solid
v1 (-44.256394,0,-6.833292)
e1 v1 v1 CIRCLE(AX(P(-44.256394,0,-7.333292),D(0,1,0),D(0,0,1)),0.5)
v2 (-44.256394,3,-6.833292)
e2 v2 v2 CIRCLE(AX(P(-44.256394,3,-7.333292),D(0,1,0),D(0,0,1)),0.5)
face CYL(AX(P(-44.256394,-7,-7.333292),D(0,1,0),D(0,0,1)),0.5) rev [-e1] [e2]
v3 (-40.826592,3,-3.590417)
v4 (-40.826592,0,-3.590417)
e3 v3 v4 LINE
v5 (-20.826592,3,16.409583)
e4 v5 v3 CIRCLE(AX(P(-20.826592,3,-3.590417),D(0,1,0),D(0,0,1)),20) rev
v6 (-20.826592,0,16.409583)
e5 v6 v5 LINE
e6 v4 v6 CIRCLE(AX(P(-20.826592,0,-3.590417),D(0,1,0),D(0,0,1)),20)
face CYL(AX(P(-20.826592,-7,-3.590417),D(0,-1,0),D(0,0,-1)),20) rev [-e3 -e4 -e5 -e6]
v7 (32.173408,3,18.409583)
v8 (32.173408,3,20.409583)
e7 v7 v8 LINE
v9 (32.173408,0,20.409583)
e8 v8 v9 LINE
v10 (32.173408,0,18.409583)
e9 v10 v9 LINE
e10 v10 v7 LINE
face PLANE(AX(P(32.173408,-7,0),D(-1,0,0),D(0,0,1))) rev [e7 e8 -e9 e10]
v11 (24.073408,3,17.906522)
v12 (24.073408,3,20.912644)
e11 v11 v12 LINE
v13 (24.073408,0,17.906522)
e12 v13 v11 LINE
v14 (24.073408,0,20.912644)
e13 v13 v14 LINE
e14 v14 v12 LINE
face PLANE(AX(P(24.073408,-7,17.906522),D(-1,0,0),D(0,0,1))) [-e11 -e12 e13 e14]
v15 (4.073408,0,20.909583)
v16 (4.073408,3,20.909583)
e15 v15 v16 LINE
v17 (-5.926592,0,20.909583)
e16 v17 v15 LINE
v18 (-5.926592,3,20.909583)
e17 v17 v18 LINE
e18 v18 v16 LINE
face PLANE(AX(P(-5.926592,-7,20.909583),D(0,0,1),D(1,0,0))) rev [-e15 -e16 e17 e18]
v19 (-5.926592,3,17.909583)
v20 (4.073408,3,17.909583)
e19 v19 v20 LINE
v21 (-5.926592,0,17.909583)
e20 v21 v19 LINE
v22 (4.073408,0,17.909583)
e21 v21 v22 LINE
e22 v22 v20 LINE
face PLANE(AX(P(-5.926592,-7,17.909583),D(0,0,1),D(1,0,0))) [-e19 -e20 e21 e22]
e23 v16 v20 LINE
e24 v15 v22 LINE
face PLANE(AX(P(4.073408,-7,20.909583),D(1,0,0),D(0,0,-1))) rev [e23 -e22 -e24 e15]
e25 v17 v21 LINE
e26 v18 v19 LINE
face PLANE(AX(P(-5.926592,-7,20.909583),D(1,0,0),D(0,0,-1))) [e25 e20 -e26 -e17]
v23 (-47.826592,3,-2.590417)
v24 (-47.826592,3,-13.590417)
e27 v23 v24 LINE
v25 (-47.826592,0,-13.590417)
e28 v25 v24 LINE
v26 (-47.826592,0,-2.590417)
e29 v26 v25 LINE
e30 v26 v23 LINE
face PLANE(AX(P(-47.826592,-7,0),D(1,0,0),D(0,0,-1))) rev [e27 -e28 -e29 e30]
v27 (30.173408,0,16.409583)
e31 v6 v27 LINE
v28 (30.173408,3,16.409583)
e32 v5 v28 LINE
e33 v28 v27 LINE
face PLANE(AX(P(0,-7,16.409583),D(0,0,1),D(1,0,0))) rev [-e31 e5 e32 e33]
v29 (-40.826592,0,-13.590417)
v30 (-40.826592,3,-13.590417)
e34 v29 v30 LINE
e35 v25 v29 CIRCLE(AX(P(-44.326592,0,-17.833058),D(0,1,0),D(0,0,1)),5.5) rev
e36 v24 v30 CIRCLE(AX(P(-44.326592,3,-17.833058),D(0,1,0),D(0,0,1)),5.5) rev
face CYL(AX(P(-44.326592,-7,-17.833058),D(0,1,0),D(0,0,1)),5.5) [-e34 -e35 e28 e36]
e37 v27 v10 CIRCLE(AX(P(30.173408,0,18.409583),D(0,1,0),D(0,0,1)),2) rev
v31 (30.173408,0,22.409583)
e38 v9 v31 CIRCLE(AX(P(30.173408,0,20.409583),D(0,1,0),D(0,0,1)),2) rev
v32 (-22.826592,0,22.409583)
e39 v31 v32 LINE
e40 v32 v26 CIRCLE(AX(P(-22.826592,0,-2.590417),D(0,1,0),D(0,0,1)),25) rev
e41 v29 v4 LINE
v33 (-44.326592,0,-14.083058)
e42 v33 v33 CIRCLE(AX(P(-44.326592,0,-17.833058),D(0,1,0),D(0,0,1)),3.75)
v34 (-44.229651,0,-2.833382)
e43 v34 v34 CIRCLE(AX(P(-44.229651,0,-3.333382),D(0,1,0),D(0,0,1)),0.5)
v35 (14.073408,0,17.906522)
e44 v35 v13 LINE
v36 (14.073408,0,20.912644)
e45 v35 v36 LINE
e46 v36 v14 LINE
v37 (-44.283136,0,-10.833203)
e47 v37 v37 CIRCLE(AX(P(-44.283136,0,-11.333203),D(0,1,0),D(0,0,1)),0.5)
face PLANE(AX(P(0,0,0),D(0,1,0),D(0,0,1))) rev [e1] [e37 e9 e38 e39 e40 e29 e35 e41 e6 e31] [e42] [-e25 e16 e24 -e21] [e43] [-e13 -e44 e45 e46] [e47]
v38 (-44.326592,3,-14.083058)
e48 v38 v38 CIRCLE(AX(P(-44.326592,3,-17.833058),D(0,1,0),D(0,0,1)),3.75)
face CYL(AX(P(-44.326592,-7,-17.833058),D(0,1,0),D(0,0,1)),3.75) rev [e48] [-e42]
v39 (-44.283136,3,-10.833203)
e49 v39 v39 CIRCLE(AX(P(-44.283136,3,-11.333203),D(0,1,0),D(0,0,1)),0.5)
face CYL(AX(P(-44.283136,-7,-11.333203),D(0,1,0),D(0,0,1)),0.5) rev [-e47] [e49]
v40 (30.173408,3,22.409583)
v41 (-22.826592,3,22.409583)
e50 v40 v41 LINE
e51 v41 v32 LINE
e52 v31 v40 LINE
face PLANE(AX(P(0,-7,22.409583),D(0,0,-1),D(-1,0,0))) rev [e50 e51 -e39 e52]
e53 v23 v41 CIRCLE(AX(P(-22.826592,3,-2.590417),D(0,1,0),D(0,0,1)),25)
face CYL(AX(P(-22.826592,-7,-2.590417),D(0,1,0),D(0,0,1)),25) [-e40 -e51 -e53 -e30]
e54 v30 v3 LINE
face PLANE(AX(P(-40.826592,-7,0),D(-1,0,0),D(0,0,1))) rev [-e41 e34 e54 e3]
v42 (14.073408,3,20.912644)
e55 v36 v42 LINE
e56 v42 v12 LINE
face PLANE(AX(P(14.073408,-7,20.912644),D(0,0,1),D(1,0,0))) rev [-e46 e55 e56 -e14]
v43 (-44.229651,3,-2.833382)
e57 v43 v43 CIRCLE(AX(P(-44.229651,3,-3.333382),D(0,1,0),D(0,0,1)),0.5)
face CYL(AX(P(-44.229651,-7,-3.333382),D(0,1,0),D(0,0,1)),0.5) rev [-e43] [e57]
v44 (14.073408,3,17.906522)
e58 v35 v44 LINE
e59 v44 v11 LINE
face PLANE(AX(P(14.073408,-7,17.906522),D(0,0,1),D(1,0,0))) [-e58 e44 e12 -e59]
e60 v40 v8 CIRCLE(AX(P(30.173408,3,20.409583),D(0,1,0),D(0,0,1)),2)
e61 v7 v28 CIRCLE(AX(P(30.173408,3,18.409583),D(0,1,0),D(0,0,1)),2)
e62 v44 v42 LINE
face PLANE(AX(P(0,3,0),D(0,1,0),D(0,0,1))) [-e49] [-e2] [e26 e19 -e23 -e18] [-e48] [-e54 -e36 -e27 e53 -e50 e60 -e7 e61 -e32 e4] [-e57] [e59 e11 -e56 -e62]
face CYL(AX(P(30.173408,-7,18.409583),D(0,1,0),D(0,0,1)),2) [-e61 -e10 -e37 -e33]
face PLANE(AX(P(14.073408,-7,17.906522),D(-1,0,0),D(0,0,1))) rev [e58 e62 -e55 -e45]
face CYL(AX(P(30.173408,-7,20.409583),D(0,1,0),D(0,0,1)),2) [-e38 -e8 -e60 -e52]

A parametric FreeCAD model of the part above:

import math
import FreeCAD as App
import Part
import Sketcher
from FreeCAD import Vector


def edges_at(feature, points):
    """Names of the edges that pass closest to the given points."""
    edges = feature.Shape.Edges
    near = lambda p: min(range(len(edges)), key=lambda i: edges[i].distToShape(Part.Vertex(*p))[0])
    return sorted({f"Edge{near(p) + 1}" for p in points})


def add_polygon(sketch, points):
    """Adds a closed chain of lines whose ends are joined by coincident constraints."""
    first, n = sketch.GeometryCount, len(points)
    for a, b in zip(points, points[1:] + points[:1]):
        sketch.addGeometry(Part.LineSegment(App.Vector(*a, 0), App.Vector(*b, 0)), False)
    for i in range(n):
        sketch.addConstraint(Sketcher.Constraint("Coincident", first + i, 2, first + (i + 1) % n, 1))

doc = App.newDocument("Part")
body = doc.addObject("PartDesign::Body", "Body")

# Sketch on XZ plane
sketch1 = body.newObject("Sketcher::SketchObject", "Sketch")
sketch1.AttachmentSupport = (doc.getObject("XZ_Plane"), [""])
sketch1.MapMode = "FlatFace"
add_polygon(sketch1, [(-50, -25), (-50, 25), (50, 25), (50, -25)])  # lines 0-3
sketch1.addConstraint([
    Sketcher.Constraint("Vertical", 0),
    Sketcher.Constraint("Horizontal", 1),
    Sketcher.Constraint("Vertical", 2),
    Sketcher.Constraint("Horizontal", 3),
    Sketcher.Constraint("Symmetric", 0, 2, 2, 2, -1, 1),
    Sketcher.Constraint("DistanceX", 1, 1, 1, 2, 100.0),
    Sketcher.Constraint("DistanceY", 0, 1, 0, 2, 50.0),
])
pad1 = body.newObject("PartDesign::Pad", "Pad")
pad1.Profile = sketch1
pad1.Length = 3
pad1.Reversed = True

# Sketch on XZ plane
sketch2 = body.newObject("Sketcher::SketchObject", "Sketch001")
sketch2.AttachmentSupport = (doc.getObject("XZ_Plane"), [""])
sketch2.MapMode = "FlatFace"
sketch2.AttachmentOffset = App.Placement(Vector(0, 0, -3), App.Rotation())
add_polygon(sketch2, [(-50, -25), (-50, 25), (50, 25), (50, -25)])  # lines 0-3
sketch2.addGeometry(Part.ArcOfCircle(Part.Circle(Vector(-44.326592, -17.833058, 0), Vector(0, 0, 1), 5.5), math.radians(129.521196), math.radians(410.478804)), False)  # 4
sketch2.addGeometry(Part.LineSegment(Vector(-40.826592, -13.590417, 0), Vector(-40.826592, 16.409583, 0)), False)  # 5
sketch2.addGeometry(Part.LineSegment(Vector(-40.826592, 16.409583, 0), Vector(32.173408, 16.409583, 0)), False)  # 6
sketch2.addGeometry(Part.LineSegment(Vector(32.173408, 16.409583, 0), Vector(32.173408, 22.409583, 0)), False)  # 7
sketch2.addGeometry(Part.LineSegment(Vector(32.173408, 22.409583, 0), Vector(-47.826592, 22.409583, 0)), False)  # 8
sketch2.addGeometry(Part.LineSegment(Vector(-47.826592, 22.409583, 0), Vector(-47.826592, -13.590417, 0)), False)  # 9
add_polygon(sketch2, [(14.073408, 17.906522), (14.073408, 20.912644), (24.073408, 20.912644), (24.073408, 17.906522)])  # lines 10-13
add_polygon(sketch2, [(-5.926592, 17.909583), (-5.926592, 20.909583), (4.073408, 20.909583), (4.073408, 17.909583)])  # lines 14-17
sketch2.addConstraint([
    Sketcher.Constraint("Coincident", 4, 2, 5, 1),
    Sketcher.Constraint("Coincident", 5, 2, 6, 1),
    Sketcher.Constraint("Coincident", 6, 2, 7, 1),
    Sketcher.Constraint("Coincident", 7, 2, 8, 1),
    Sketcher.Constraint("Coincident", 8, 2, 9, 1),
    Sketcher.Constraint("Coincident", 9, 2, 4, 1),
    Sketcher.Constraint("Vertical", 0),
    Sketcher.Constraint("Horizontal", 1),
    Sketcher.Constraint("Vertical", 2),
    Sketcher.Constraint("Horizontal", 3),
    Sketcher.Constraint("Vertical", 5),
    Sketcher.Constraint("Horizontal", 6),
    Sketcher.Constraint("Vertical", 7),
    Sketcher.Constraint("Horizontal", 8),
    Sketcher.Constraint("Vertical", 9),
    Sketcher.Constraint("Vertical", 10),
    Sketcher.Constraint("Horizontal", 11),
    Sketcher.Constraint("Vertical", 12),
    Sketcher.Constraint("Horizontal", 13),
    Sketcher.Constraint("Vertical", 14),
    Sketcher.Constraint("Horizontal", 15),
    Sketcher.Constraint("Vertical", 16),
    Sketcher.Constraint("Horizontal", 17),
    Sketcher.Constraint("Symmetric", 0, 2, 2, 2, -1, 1),
    Sketcher.Constraint("Horizontal", 4, 2, 9, 2),
    Sketcher.Constraint("Equal", 13, 15),
    Sketcher.Constraint("Radius", 4, 5.5),
    Sketcher.Constraint("DistanceX", 1, 1, 1, 2, 100.0),
    Sketcher.Constraint("DistanceX", 6, 1, 6, 2, 73.0),
    Sketcher.Constraint("DistanceX", 8, 2, 8, 1, 80.0),
    Sketcher.Constraint("DistanceX", 11, 1, 11, 2, 10.0),
    Sketcher.Constraint("DistanceY", 0, 1, 0, 2, 50.0),
    Sketcher.Constraint("DistanceY", 5, 1, 5, 2, 30.0),
    Sketcher.Constraint("DistanceY", 7, 1, 7, 2, 6.0),
    Sketcher.Constraint("DistanceY", 14, 1, 14, 2, 3.0),
    Sketcher.Constraint("DistanceX", 14, 2, 10, 2, 20.0),
    Sketcher.Constraint("DistanceX", 10, 2, 7, 2, 18.1),
    Sketcher.Constraint("DistanceY", 5, 2, 14, 2, 4.5),
    Sketcher.Constraint("DistanceY", 10, 1, 10, 2, 3.006123),
    Sketcher.Constraint("DistanceY", -1, 1, 12, 2, 17.906522),
    Sketcher.Constraint("DistanceY", 10, 2, 7, 2, 1.496939),
    Sketcher.Constraint("DistanceX", 4, 3, -1, 1, 44.326592),
])
pocket1 = body.newObject("PartDesign::Pocket", "Pocket")
pocket1.Profile = sketch2
pocket1.Length = 10
pocket1.Reversed = True

# Sketch on XZ plane
sketch3 = body.newObject("Sketcher::SketchObject", "Sketch002")
sketch3.AttachmentSupport = (doc.getObject("XZ_Plane"), [""])
sketch3.MapMode = "FlatFace"
sketch3.AttachmentOffset = App.Placement(Vector(0, 0, -3), App.Rotation())
sketch3.addGeometry(Part.Circle(Vector(-44.326592, -17.833058, 0), Vector(0, 0, 1), 1.79855), False)
sketch3.addConstraint([
    Sketcher.Constraint("Diameter", 0, 3.5971),
    Sketcher.Constraint("DistanceX", 0, 3, -1, 1, 44.326592),
    Sketcher.Constraint("DistanceY", 0, 3, -1, 1, 17.833058),
])
pocket2 = body.newObject("PartDesign::Pocket", "Pocket001")
pocket2.Profile = sketch3
pocket2.Length = 10
pocket2.Reversed = True
doc.recompute()

fillet = body.newObject("PartDesign::Fillet", "Fillet")
fillet.Base = (pocket2, edges_at(pocket2, [(-40.827, 1.5, 16.41)]))
fillet.Radius = 20
doc.recompute()

fillet2 = body.newObject("PartDesign::Fillet", "Fillet001")
fillet2.Base = (fillet, edges_at(fillet, [(-47.827, 1.5, 22.41)]))
fillet2.Radius = 25

# Sketch on XZ plane
sketch4 = body.newObject("Sketcher::SketchObject", "Sketch003")
sketch4.AttachmentSupport = (doc.getObject("XZ_Plane"), [""])
sketch4.MapMode = "FlatFace"
sketch4.AttachmentOffset = App.Placement(Vector(0, 0, -3), App.Rotation())
sketch4.addGeometry([
    Part.Circle(Vector(-44.283136, -11.333203, 0), Vector(0, 0, 1), 0.5),
    Part.Circle(Vector(-44.256394, -7.333292, 0), Vector(0, 0, 1), 0.5),
    Part.Circle(Vector(-44.229651, -3.333382, 0), Vector(0, 0, 1), 0.5),
    Part.Circle(Vector(-44.326592, -17.833058, 0), Vector(0, 0, 1), 3.75),
], False)
sketch4.addConstraint([
    Sketcher.Constraint("Equal", 0, 1),
    Sketcher.Constraint("Equal", 1, 2),
    Sketcher.Constraint("Diameter", 0, 1.0),
    Sketcher.Constraint("Diameter", 3, 7.5),
    Sketcher.Constraint("DistanceX", 3, 3, 1, 3, 0.070198),
    Sketcher.Constraint("DistanceX", 2, 3, -1, 1, 44.229651),
    Sketcher.Constraint("DistanceY", 2, 3, -1, 1, 3.333382),
    Sketcher.Constraint("DistanceY", 0, 3, 1, 3, 3.999911),
    Sketcher.Constraint("DistanceY", 1, 3, 2, 3, 3.999911),
    Sketcher.Constraint("DistanceX", 3, 3, 2, 3, 0.096941),
    Sketcher.Constraint("DistanceX", 0, 3, -1, 1, 44.283136),
    Sketcher.Constraint("DistanceY", 3, 3, -1, 1, 17.833058),
])
pocket3 = body.newObject("PartDesign::Pocket", "Pocket002")
pocket3.Profile = sketch4
pocket3.Length = 10
pocket3.Reversed = True
doc.recompute()

fillet3 = body.newObject("PartDesign::Fillet", "Fillet002")
fillet3.Base = (pocket3, edges_at(pocket3, [(32.173, 1.5, 22.41), (32.173, 1.5, 16.41)]))
fillet3.Radius = 2

doc.recompute()
